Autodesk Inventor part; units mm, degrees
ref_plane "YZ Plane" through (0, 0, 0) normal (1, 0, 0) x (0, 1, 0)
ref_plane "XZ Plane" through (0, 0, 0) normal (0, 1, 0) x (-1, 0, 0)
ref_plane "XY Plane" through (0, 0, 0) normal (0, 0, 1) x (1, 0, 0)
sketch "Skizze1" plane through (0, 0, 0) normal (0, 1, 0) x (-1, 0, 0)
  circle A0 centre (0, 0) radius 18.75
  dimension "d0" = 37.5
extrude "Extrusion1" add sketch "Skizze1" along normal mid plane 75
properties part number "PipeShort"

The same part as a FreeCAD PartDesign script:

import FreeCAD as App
import Part
import Sketcher

V = App.Vector
Q = App.Units.Quantity

doc = App.newDocument("Part")
body = doc.addObject("PartDesign::Body", "Body")

# Sketch on XZ plane
sketch1 = doc.addObject("Sketcher::SketchObject", "Sketch")
body.addObject(sketch1)
sketch1.AttachmentSupport = (doc.XZ_Plane, [""])
sketch1.MapMode = "FlatFace"
sketch1.addGeometry(Part.Circle(V(0, 0, 0), V(0, 0, 1), 19), False)
sketch1.addConstraint(Sketcher.Constraint("Coincident", 0, 3, -1, 1))
sketch1.addConstraint(Sketcher.Constraint("Diameter", 0, Q("37.5 mm")))
pad1 = doc.addObject("PartDesign::Pad", "Pad")
body.addObject(pad1)
pad1.Profile = sketch1
pad1.Length = 75
pad1.Midplane = True

doc.recompute()
